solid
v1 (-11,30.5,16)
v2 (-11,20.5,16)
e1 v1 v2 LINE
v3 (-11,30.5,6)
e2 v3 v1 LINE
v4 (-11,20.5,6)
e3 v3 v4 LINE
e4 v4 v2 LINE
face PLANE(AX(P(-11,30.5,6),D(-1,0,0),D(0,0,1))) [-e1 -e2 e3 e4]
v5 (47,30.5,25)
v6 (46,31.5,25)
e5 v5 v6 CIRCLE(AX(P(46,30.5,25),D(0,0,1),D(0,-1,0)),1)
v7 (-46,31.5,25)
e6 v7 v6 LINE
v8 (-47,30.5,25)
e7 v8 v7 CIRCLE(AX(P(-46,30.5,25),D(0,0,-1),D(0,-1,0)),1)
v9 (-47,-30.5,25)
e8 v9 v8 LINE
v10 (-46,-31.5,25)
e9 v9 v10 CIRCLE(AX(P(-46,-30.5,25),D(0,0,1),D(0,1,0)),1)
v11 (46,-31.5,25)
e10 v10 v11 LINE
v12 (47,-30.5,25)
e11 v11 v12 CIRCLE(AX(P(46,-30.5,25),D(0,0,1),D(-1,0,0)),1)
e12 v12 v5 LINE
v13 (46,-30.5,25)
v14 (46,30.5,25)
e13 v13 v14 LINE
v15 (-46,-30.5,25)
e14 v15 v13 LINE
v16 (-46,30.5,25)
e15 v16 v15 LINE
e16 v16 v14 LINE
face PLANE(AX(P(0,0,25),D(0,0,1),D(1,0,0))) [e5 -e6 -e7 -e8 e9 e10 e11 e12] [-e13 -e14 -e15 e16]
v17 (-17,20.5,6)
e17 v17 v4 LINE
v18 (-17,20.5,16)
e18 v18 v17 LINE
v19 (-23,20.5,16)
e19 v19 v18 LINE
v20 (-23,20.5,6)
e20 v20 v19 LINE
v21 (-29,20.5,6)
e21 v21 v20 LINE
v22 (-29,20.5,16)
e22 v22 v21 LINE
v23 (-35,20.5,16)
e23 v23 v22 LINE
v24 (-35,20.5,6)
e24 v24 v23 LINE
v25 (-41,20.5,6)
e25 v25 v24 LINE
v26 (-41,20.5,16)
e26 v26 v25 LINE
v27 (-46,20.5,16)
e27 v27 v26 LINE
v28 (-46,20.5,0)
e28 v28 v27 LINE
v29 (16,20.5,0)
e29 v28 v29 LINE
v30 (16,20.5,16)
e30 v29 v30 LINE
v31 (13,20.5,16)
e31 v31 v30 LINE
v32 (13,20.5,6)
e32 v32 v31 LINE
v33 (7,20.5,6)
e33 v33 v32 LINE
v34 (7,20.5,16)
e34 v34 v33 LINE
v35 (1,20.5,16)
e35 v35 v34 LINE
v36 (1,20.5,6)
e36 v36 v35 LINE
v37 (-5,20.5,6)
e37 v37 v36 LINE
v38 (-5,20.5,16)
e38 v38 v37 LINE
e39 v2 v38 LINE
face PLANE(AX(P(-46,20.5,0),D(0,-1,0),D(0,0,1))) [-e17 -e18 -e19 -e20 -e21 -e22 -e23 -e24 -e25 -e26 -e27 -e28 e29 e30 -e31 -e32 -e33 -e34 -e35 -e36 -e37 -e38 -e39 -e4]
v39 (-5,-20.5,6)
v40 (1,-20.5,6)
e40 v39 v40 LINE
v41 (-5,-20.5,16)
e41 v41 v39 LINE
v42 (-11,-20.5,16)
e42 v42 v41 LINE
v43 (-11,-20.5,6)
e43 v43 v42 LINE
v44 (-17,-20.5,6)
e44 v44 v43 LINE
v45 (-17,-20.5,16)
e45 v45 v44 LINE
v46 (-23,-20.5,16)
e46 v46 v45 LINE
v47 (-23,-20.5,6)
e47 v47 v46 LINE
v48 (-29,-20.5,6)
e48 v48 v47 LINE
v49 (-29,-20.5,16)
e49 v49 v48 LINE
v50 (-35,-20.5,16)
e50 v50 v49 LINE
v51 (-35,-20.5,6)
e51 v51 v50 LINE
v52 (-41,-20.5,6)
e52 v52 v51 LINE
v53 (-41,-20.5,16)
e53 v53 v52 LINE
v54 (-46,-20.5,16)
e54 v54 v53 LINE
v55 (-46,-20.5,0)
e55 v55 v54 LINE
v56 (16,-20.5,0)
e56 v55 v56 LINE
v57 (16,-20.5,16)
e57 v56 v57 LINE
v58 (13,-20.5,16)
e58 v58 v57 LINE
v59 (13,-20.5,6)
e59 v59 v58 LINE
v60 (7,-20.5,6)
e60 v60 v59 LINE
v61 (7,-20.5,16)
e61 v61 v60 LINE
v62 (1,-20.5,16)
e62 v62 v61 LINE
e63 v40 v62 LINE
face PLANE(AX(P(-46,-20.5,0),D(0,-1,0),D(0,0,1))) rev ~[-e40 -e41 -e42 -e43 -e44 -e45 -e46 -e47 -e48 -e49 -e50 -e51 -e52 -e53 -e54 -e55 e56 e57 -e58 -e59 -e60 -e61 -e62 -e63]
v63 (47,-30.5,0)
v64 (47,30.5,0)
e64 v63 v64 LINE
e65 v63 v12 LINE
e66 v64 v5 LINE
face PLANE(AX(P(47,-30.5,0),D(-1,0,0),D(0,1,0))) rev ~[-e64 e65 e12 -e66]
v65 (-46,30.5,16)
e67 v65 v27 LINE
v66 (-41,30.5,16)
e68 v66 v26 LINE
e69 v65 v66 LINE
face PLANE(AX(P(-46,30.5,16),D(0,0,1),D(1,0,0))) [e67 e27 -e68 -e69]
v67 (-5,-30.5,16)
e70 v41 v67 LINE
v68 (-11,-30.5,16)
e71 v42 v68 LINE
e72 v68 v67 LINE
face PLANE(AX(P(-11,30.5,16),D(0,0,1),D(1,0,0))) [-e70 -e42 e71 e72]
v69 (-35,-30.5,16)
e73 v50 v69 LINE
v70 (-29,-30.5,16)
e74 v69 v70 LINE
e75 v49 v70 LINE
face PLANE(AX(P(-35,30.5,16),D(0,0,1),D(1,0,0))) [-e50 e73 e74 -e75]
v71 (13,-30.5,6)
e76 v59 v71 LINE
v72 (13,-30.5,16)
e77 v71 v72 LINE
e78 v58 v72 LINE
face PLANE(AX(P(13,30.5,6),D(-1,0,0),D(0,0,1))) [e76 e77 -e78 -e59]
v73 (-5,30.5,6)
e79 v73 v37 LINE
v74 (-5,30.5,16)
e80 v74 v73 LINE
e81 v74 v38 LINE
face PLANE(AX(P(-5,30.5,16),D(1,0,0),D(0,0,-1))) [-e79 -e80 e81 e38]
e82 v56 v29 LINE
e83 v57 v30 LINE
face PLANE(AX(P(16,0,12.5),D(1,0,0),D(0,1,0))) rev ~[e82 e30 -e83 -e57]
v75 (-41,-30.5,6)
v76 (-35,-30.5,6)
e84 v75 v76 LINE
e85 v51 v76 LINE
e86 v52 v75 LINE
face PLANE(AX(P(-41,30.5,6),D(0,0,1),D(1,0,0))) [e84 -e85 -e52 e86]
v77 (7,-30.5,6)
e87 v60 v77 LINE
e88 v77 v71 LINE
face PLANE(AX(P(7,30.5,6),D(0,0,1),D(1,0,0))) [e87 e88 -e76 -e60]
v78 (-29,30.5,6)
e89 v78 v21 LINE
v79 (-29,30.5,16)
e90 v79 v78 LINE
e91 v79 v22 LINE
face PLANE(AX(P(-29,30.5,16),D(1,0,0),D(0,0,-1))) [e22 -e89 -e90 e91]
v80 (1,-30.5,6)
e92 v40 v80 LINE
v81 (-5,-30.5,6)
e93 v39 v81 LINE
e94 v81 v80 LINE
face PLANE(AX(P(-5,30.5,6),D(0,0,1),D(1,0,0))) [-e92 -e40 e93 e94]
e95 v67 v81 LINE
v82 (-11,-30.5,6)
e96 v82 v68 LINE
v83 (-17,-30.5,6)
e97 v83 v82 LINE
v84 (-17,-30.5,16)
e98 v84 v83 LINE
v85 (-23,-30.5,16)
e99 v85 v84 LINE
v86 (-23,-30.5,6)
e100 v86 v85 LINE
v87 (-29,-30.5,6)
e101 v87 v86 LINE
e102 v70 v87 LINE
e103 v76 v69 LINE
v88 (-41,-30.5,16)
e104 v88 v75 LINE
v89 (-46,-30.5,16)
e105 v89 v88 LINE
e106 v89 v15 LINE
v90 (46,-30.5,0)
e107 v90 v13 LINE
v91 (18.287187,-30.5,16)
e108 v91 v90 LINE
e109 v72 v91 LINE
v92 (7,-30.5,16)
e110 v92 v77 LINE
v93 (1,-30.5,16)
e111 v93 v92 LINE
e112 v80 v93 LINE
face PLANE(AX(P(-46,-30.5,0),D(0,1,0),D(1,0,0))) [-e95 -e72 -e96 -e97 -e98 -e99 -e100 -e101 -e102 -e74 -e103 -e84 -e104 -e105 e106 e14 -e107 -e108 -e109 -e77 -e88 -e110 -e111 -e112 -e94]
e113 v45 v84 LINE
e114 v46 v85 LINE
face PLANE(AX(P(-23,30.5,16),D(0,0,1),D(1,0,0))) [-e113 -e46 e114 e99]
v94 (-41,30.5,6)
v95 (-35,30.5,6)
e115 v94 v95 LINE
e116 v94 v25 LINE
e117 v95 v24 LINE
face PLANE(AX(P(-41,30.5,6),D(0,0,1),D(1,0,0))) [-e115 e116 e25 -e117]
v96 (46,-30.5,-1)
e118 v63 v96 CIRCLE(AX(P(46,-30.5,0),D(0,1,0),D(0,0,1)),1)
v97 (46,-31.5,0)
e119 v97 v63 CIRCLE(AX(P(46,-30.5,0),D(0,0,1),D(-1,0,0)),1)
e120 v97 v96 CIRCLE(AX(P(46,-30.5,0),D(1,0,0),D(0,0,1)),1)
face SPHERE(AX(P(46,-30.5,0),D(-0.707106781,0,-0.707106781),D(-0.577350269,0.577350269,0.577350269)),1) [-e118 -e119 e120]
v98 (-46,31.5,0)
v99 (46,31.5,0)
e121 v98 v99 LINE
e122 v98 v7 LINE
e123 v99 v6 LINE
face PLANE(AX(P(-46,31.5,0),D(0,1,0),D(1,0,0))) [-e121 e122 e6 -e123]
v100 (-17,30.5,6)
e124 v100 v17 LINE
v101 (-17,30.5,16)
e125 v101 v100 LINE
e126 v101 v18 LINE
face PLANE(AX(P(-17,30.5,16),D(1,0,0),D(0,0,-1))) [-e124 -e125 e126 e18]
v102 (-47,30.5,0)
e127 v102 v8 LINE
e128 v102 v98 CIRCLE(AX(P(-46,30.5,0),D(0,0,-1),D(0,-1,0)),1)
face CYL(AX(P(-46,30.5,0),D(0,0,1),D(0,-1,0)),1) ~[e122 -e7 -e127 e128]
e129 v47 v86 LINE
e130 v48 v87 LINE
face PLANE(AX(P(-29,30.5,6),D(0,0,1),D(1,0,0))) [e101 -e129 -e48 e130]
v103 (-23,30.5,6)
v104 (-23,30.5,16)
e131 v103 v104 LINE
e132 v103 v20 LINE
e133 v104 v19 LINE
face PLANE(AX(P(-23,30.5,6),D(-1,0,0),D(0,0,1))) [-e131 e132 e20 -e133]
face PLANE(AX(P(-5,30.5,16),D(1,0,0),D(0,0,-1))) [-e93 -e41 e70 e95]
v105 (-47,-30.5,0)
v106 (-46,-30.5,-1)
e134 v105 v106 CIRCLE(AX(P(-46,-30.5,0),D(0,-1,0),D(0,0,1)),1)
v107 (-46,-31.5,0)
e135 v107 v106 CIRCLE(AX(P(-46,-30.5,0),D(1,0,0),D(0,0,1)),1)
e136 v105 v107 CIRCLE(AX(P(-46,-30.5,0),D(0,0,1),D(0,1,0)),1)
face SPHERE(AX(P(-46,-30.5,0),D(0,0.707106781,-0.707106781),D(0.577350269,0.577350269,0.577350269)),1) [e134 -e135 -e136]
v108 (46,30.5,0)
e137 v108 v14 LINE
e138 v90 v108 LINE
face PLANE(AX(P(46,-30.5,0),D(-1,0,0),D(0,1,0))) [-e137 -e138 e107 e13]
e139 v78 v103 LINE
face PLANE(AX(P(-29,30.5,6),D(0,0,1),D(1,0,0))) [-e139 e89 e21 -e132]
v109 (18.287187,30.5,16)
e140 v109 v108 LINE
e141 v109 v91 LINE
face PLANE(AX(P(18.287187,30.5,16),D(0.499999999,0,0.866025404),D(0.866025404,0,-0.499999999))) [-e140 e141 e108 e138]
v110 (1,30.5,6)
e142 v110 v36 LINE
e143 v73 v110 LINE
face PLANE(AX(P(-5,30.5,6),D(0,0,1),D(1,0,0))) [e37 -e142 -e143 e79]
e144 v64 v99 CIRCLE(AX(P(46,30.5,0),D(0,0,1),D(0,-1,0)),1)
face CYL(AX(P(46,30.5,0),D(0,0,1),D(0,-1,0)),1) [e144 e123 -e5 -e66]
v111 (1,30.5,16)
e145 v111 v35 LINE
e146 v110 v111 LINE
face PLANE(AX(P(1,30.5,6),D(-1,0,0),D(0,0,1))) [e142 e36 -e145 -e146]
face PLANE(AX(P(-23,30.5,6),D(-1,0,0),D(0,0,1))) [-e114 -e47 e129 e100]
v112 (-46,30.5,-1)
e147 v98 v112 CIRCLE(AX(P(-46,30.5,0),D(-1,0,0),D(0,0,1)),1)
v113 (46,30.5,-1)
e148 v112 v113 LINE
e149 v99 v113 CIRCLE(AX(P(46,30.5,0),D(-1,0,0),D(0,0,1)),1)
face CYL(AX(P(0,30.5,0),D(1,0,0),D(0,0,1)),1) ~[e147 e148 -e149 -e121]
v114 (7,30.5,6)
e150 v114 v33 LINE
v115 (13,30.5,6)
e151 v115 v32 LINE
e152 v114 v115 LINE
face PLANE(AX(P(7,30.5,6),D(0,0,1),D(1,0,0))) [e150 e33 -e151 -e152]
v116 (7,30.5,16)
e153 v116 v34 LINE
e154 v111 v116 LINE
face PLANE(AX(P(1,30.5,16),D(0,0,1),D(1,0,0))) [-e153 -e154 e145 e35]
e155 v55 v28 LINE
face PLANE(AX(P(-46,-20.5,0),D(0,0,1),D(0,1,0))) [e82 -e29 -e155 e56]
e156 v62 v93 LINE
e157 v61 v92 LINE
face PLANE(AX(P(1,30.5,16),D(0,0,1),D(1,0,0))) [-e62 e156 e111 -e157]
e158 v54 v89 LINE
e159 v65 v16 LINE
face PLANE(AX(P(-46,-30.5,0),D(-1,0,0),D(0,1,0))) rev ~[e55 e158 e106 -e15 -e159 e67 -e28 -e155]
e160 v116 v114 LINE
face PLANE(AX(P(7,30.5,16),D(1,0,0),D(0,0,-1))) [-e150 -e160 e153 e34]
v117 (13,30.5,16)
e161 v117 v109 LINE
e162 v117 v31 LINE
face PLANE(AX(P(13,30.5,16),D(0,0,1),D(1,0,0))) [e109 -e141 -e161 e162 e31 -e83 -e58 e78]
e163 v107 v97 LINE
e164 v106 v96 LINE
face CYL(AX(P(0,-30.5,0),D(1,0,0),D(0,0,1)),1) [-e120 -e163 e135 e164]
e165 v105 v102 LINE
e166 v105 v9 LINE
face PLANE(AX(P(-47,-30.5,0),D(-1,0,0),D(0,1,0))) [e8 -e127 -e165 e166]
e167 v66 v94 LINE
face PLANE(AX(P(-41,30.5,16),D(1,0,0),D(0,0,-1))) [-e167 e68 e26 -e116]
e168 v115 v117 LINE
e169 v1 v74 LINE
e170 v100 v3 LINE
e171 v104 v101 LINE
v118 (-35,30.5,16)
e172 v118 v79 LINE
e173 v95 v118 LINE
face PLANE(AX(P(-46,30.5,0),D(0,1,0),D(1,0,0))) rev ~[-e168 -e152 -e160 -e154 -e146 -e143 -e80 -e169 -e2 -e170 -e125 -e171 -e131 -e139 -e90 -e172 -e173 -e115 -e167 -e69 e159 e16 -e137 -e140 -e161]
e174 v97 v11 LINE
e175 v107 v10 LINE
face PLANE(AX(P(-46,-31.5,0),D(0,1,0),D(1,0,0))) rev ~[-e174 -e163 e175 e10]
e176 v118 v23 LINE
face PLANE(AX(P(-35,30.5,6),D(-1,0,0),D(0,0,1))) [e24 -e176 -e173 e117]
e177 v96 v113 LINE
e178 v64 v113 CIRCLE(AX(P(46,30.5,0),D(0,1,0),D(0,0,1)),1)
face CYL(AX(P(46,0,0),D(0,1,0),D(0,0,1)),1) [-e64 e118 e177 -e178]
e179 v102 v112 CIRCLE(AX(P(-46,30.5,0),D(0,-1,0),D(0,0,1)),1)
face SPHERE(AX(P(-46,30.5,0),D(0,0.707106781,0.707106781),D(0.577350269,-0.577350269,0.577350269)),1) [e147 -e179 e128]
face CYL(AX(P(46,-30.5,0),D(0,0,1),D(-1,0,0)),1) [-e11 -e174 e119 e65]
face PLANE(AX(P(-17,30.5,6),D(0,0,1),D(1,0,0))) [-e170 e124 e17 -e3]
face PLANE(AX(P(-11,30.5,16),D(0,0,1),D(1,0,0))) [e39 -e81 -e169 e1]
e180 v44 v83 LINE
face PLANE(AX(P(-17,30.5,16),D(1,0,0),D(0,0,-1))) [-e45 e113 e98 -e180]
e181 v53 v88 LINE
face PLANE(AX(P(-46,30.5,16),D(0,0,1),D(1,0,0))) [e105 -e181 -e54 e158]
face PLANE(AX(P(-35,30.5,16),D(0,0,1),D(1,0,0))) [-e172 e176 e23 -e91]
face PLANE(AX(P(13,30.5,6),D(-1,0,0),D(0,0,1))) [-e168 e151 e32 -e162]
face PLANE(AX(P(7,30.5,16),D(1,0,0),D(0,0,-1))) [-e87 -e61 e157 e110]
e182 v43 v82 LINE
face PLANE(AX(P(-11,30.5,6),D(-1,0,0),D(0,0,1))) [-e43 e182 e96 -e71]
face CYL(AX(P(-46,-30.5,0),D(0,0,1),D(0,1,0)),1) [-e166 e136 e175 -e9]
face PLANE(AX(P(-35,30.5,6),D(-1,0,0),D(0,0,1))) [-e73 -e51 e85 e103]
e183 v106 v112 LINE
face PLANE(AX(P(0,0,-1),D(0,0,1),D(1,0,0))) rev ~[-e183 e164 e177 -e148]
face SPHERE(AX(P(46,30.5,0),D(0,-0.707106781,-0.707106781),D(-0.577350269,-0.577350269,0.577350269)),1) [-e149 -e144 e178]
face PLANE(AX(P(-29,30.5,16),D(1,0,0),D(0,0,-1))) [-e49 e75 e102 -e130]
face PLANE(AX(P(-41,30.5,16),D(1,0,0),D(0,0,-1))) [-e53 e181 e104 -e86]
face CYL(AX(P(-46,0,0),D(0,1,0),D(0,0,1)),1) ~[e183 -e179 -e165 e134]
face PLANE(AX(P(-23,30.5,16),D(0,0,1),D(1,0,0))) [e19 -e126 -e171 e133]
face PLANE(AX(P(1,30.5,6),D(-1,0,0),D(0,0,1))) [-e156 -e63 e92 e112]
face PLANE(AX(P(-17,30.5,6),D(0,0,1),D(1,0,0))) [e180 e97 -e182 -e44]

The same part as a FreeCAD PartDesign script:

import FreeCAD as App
import Part
import Sketcher

V = App.Vector
Q = App.Units.Quantity


def faces_at(feature, points):
    """Names of the faces that lie closest to the given points."""
    faces = feature.Shape.Faces
    near = lambda p: min(range(len(faces)), key=lambda i: faces[i].distToShape(Part.Vertex(*p))[0])
    return sorted({f"Face{near(p) + 1}" for p in points})

doc = App.newDocument("Part")
body = doc.addObject("PartDesign::Body", "Body")

sketch1 = body.newObject("Sketcher::SketchObject", "Sketch")
sketch1.AttachmentSupport = (doc.getObject("XY_Plane"), [""])
sketch1.MapMode = "FlatFace"
sketch1.addGeometry(Part.LineSegment(V(-46, 30.5, 0), V(-46, -30.5, 0)), False)
sketch1.addGeometry(Part.LineSegment(V(-46, -30.5, 0), V(46, -30.5, 0)), False)
sketch1.addGeometry(Part.LineSegment(V(46, -30.5, 0), V(46, 30.5, 0)), False)
sketch1.addGeometry(Part.LineSegment(V(46, 30.5, 0), V(-46, 30.5, 0)), False)
sketch1.addConstraint(Sketcher.Constraint("Coincident", 0, 2, 1, 1))
sketch1.addConstraint(Sketcher.Constraint("Coincident", 1, 2, 2, 1))
sketch1.addConstraint(Sketcher.Constraint("Coincident", 2, 2, 3, 1))
sketch1.addConstraint(Sketcher.Constraint("Coincident", 3, 2, 0, 1))
sketch1.addConstraint(Sketcher.Constraint("Vertical", 0))
sketch1.addConstraint(Sketcher.Constraint("Horizontal", 1))
sketch1.addConstraint(Sketcher.Constraint("Vertical", 2))
sketch1.addConstraint(Sketcher.Constraint("Horizontal", 3))
sketch1.addConstraint(Sketcher.Constraint("Symmetric", 0, 2, 2, 2, -1, 1))
sketch1.addConstraint(Sketcher.Constraint("DistanceX", 1, 1, 1, 2, Q("92 mm")))
sketch1.addConstraint(Sketcher.Constraint("DistanceY", 0, 2, 0, 1, Q("61 mm")))
pad1 = body.newObject("PartDesign::Pad", "Pad")
pad1.Profile = sketch1
pad1.Length = 25
doc.recompute()

thickness = body.newObject("PartDesign::Thickness", "Thickness")
thickness.Base = (pad1, faces_at(pad1, [(0, 0, 25)]))
thickness.Value = 1
thickness.Reversed = False
thickness.Join = "Arc"

sketch2 = body.newObject("Sketcher::SketchObject", "Sketch001")
sketch2.AttachmentSupport = (doc.getObject("XZ_Plane"), [""])
sketch2.MapMode = "FlatFace"
sketch2.AttachmentOffset = App.Placement(V(0, 0, -30.5), App.Rotation())
sketch2.addGeometry(Part.LineSegment(V(-46, 0, 0), V(46, 0, 0)), False)
sketch2.addGeometry(Part.LineSegment(V(46, 0, 0), V(18.287187, 16, 0)), False)
sketch2.addGeometry(Part.LineSegment(V(18.287187, 16, 0), V(13, 16, 0)), False)
sketch2.addGeometry(Part.LineSegment(V(13, 16, 0), V(13, 6, 0)), False)
sketch2.addGeometry(Part.LineSegment(V(13, 6, 0), V(7, 6, 0)), False)
sketch2.addGeometry(Part.LineSegment(V(7, 6, 0), V(7, 16, 0)), False)
sketch2.addGeometry(Part.LineSegment(V(7, 16, 0), V(1, 16, 0)), False)
sketch2.addGeometry(Part.LineSegment(V(1, 16, 0), V(1, 6, 0)), False)
sketch2.addGeometry(Part.LineSegment(V(1, 6, 0), V(-5, 6, 0)), False)
sketch2.addGeometry(Part.LineSegment(V(-5, 6, 0), V(-5, 16, 0)), False)
sketch2.addGeometry(Part.LineSegment(V(-5, 16, 0), V(-11, 16, 0)), False)
sketch2.addGeometry(Part.LineSegment(V(-11, 16, 0), V(-11, 6, 0)), False)
sketch2.addGeometry(Part.LineSegment(V(-11, 6, 0), V(-17, 6, 0)), False)
sketch2.addGeometry(Part.LineSegment(V(-17, 6, 0), V(-17, 16, 0)), False)
sketch2.addGeometry(Part.LineSegment(V(-17, 16, 0), V(-23, 16, 0)), False)
sketch2.addGeometry(Part.LineSegment(V(-23, 16, 0), V(-23, 6, 0)), False)
sketch2.addGeometry(Part.LineSegment(V(-23, 6, 0), V(-29, 6, 0)), False)
sketch2.addGeometry(Part.LineSegment(V(-29, 6, 0), V(-29, 16, 0)), False)
sketch2.addGeometry(Part.LineSegment(V(-29, 16, 0), V(-35, 16, 0)), False)
sketch2.addGeometry(Part.LineSegment(V(-35, 16, 0), V(-35, 6, 0)), False)
sketch2.addGeometry(Part.LineSegment(V(-35, 6, 0), V(-41, 6, 0)), False)
sketch2.addGeometry(Part.LineSegment(V(-41, 6, 0), V(-41, 16, 0)), False)
sketch2.addGeometry(Part.LineSegment(V(-41, 16, 0), V(-46, 16, 0)), False)
sketch2.addGeometry(Part.LineSegment(V(-46, 16, 0), V(-46, 0, 0)), False)
sketch2.addConstraint(Sketcher.Constraint("Coincident", 0, 2, 1, 1))
sketch2.addConstraint(Sketcher.Constraint("Coincident", 1, 2, 2, 1))
sketch2.addConstraint(Sketcher.Constraint("Coincident", 2, 2, 3, 1))
sketch2.addConstraint(Sketcher.Constraint("Coincident", 3, 2, 4, 1))
sketch2.addConstraint(Sketcher.Constraint("Coincident", 4, 2, 5, 1))
sketch2.addConstraint(Sketcher.Constraint("Coincident", 5, 2, 6, 1))
sketch2.addConstraint(Sketcher.Constraint("Coincident", 6, 2, 7, 1))
sketch2.addConstraint(Sketcher.Constraint("Coincident", 7, 2, 8, 1))
sketch2.addConstraint(Sketcher.Constraint("Coincident", 8, 2, 9, 1))
sketch2.addConstraint(Sketcher.Constraint("Coincident", 9, 2, 10, 1))
sketch2.addConstraint(Sketcher.Constraint("Coincident", 10, 2, 11, 1))
sketch2.addConstraint(Sketcher.Constraint("Coincident", 11, 2, 12, 1))
sketch2.addConstraint(Sketcher.Constraint("Coincident", 12, 2, 13, 1))
sketch2.addConstraint(Sketcher.Constraint("Coincident", 13, 2, 14, 1))
sketch2.addConstraint(Sketcher.Constraint("Coincident", 14, 2, 15, 1))
sketch2.addConstraint(Sketcher.Constraint("Coincident", 15, 2, 16, 1))
sketch2.addConstraint(Sketcher.Constraint("Coincident", 16, 2, 17, 1))
sketch2.addConstraint(Sketcher.Constraint("Coincident", 17, 2, 18, 1))
sketch2.addConstraint(Sketcher.Constraint("Coincident", 18, 2, 19, 1))
sketch2.addConstraint(Sketcher.Constraint("Coincident", 19, 2, 20, 1))
sketch2.addConstraint(Sketcher.Constraint("Coincident", 20, 2, 21, 1))
sketch2.addConstraint(Sketcher.Constraint("Coincident", 21, 2, 22, 1))
sketch2.addConstraint(Sketcher.Constraint("Coincident", 22, 2, 23, 1))
sketch2.addConstraint(Sketcher.Constraint("Coincident", 23, 2, 0, 1))
sketch2.addConstraint(Sketcher.Constraint("Horizontal", 0))
sketch2.addConstraint(Sketcher.Constraint("Horizontal", 2))
sketch2.addConstraint(Sketcher.Constraint("Vertical", 3))
sketch2.addConstraint(Sketcher.Constraint("Horizontal", 4))
sketch2.addConstraint(Sketcher.Constraint("Vertical", 5))
sketch2.addConstraint(Sketcher.Constraint("Horizontal", 6))
sketch2.addConstraint(Sketcher.Constraint("Vertical", 7))
sketch2.addConstraint(Sketcher.Constraint("Horizontal", 8))
sketch2.addConstraint(Sketcher.Constraint("Vertical", 9))
sketch2.addConstraint(Sketcher.Constraint("Horizontal", 10))
sketch2.addConstraint(Sketcher.Constraint("Vertical", 11))
sketch2.addConstraint(Sketcher.Constraint("Horizontal", 12))
sketch2.addConstraint(Sketcher.Constraint("Vertical", 13))
sketch2.addConstraint(Sketcher.Constraint("Horizontal", 14))
sketch2.addConstraint(Sketcher.Constraint("Vertical", 15))
sketch2.addConstraint(Sketcher.Constraint("Horizontal", 16))
sketch2.addConstraint(Sketcher.Constraint("Vertical", 17))
sketch2.addConstraint(Sketcher.Constraint("Horizontal", 18))
sketch2.addConstraint(Sketcher.Constraint("Vertical", 19))
sketch2.addConstraint(Sketcher.Constraint("Horizontal", 20))
sketch2.addConstraint(Sketcher.Constraint("Vertical", 21))
sketch2.addConstraint(Sketcher.Constraint("Horizontal", 22))
sketch2.addConstraint(Sketcher.Constraint("Vertical", 23))
sketch2.addConstraint(Sketcher.Constraint("Symmetric", 0, 2, 23, 2, -1, 1))
sketch2.addConstraint(Sketcher.Constraint("Horizontal", 2, 2, 5, 2))
sketch2.addConstraint(Sketcher.Constraint("Horizontal", 4, 2, 7, 2))
sketch2.addConstraint(Sketcher.Constraint("Horizontal", 6, 2, 9, 2))
sketch2.addConstraint(Sketcher.Constraint("Horizontal", 8, 2, 11, 2))
sketch2.addConstraint(Sketcher.Constraint("Horizontal", 10, 2, 13, 2))
sketch2.addConstraint(Sketcher.Constraint("Horizontal", 12, 2, 15, 2))
sketch2.addConstraint(Sketcher.Constraint("Horizontal", 14, 2, 17, 2))
sketch2.addConstraint(Sketcher.Constraint("Horizontal", 16, 2, 19, 2))
sketch2.addConstraint(Sketcher.Constraint("Horizontal", 18, 2, 21, 2))
sketch2.addConstraint(Sketcher.Constraint("Equal", 4, 6))
sketch2.addConstraint(Sketcher.Constraint("Equal", 6, 8))
sketch2.addConstraint(Sketcher.Constraint("Equal", 8, 10))
sketch2.addConstraint(Sketcher.Constraint("Equal", 10, 12))
sketch2.addConstraint(Sketcher.Constraint("Equal", 12, 14))
sketch2.addConstraint(Sketcher.Constraint("Equal", 14, 16))
sketch2.addConstraint(Sketcher.Constraint("Equal", 16, 18))
sketch2.addConstraint(Sketcher.Constraint("Equal", 18, 20))
sketch2.addConstraint(Sketcher.Constraint("DistanceX", 0, 1, 0, 2, Q("92 mm")))
sketch2.addConstraint(Sketcher.Constraint("DistanceX", 4, 2, 4, 1, Q("6 mm")))
sketch2.addConstraint(Sketcher.Constraint("DistanceX", 22, 2, 22, 1, Q("5 mm")))
sketch2.addConstraint(Sketcher.Constraint("DistanceY", 3, 2, 3, 1, Q("10 mm")))
sketch2.addConstraint(Sketcher.Constraint("DistanceY", 23, 2, 23, 1, Q("16 mm")))
sketch2.addConstraint(Sketcher.Constraint("Angle", 1, Q("150 deg")))
pad2 = body.newObject("PartDesign::Pad", "Pad001")
pad2.Profile = sketch2
pad2.Length = 61

sketch3 = body.newObject("Sketcher::SketchObject", "Sketch002")
sketch3.AttachmentSupport = (doc.getObject("YZ_Plane"), [""])
sketch3.MapMode = "FlatFace"
sketch3.AttachmentOffset = App.Placement(V(0, 0, -46), App.Rotation())
sketch3.addGeometry(Part.LineSegment(V(-20.5, 25, 0), V(-20.5, 0, 0)), False)
sketch3.addGeometry(Part.LineSegment(V(-20.5, 0, 0), V(20.5, 0, 0)), False)
sketch3.addGeometry(Part.LineSegment(V(20.5, 0, 0), V(20.5, 25, 0)), False)
sketch3.addGeometry(Part.LineSegment(V(20.5, 25, 0), V(-20.5, 25, 0)), False)
sketch3.addConstraint(Sketcher.Constraint("Coincident", 0, 2, 1, 1))
sketch3.addConstraint(Sketcher.Constraint("Coincident", 1, 2, 2, 1))
sketch3.addConstraint(Sketcher.Constraint("Coincident", 2, 2, 3, 1))
sketch3.addConstraint(Sketcher.Constraint("Coincident", 3, 2, 0, 1))
sketch3.addConstraint(Sketcher.Constraint("Vertical", 0))
sketch3.addConstraint(Sketcher.Constraint("Horizontal", 1))
sketch3.addConstraint(Sketcher.Constraint("Vertical", 2))
sketch3.addConstraint(Sketcher.Constraint("Horizontal", 3))
sketch3.addConstraint(Sketcher.Constraint("Symmetric", 0, 2, 1, 2, -1, 1))
sketch3.addConstraint(Sketcher.Constraint("DistanceX", 1, 1, 1, 2, Q("41 mm")))
sketch3.addConstraint(Sketcher.Constraint("DistanceY", 0, 2, 0, 1, Q("25 mm")))
pocket1 = body.newObject("PartDesign::Pocket", "Pocket")
pocket1.Profile = sketch3
pocket1.Length = 62
pocket1.Reversed = True

doc.recompute()
